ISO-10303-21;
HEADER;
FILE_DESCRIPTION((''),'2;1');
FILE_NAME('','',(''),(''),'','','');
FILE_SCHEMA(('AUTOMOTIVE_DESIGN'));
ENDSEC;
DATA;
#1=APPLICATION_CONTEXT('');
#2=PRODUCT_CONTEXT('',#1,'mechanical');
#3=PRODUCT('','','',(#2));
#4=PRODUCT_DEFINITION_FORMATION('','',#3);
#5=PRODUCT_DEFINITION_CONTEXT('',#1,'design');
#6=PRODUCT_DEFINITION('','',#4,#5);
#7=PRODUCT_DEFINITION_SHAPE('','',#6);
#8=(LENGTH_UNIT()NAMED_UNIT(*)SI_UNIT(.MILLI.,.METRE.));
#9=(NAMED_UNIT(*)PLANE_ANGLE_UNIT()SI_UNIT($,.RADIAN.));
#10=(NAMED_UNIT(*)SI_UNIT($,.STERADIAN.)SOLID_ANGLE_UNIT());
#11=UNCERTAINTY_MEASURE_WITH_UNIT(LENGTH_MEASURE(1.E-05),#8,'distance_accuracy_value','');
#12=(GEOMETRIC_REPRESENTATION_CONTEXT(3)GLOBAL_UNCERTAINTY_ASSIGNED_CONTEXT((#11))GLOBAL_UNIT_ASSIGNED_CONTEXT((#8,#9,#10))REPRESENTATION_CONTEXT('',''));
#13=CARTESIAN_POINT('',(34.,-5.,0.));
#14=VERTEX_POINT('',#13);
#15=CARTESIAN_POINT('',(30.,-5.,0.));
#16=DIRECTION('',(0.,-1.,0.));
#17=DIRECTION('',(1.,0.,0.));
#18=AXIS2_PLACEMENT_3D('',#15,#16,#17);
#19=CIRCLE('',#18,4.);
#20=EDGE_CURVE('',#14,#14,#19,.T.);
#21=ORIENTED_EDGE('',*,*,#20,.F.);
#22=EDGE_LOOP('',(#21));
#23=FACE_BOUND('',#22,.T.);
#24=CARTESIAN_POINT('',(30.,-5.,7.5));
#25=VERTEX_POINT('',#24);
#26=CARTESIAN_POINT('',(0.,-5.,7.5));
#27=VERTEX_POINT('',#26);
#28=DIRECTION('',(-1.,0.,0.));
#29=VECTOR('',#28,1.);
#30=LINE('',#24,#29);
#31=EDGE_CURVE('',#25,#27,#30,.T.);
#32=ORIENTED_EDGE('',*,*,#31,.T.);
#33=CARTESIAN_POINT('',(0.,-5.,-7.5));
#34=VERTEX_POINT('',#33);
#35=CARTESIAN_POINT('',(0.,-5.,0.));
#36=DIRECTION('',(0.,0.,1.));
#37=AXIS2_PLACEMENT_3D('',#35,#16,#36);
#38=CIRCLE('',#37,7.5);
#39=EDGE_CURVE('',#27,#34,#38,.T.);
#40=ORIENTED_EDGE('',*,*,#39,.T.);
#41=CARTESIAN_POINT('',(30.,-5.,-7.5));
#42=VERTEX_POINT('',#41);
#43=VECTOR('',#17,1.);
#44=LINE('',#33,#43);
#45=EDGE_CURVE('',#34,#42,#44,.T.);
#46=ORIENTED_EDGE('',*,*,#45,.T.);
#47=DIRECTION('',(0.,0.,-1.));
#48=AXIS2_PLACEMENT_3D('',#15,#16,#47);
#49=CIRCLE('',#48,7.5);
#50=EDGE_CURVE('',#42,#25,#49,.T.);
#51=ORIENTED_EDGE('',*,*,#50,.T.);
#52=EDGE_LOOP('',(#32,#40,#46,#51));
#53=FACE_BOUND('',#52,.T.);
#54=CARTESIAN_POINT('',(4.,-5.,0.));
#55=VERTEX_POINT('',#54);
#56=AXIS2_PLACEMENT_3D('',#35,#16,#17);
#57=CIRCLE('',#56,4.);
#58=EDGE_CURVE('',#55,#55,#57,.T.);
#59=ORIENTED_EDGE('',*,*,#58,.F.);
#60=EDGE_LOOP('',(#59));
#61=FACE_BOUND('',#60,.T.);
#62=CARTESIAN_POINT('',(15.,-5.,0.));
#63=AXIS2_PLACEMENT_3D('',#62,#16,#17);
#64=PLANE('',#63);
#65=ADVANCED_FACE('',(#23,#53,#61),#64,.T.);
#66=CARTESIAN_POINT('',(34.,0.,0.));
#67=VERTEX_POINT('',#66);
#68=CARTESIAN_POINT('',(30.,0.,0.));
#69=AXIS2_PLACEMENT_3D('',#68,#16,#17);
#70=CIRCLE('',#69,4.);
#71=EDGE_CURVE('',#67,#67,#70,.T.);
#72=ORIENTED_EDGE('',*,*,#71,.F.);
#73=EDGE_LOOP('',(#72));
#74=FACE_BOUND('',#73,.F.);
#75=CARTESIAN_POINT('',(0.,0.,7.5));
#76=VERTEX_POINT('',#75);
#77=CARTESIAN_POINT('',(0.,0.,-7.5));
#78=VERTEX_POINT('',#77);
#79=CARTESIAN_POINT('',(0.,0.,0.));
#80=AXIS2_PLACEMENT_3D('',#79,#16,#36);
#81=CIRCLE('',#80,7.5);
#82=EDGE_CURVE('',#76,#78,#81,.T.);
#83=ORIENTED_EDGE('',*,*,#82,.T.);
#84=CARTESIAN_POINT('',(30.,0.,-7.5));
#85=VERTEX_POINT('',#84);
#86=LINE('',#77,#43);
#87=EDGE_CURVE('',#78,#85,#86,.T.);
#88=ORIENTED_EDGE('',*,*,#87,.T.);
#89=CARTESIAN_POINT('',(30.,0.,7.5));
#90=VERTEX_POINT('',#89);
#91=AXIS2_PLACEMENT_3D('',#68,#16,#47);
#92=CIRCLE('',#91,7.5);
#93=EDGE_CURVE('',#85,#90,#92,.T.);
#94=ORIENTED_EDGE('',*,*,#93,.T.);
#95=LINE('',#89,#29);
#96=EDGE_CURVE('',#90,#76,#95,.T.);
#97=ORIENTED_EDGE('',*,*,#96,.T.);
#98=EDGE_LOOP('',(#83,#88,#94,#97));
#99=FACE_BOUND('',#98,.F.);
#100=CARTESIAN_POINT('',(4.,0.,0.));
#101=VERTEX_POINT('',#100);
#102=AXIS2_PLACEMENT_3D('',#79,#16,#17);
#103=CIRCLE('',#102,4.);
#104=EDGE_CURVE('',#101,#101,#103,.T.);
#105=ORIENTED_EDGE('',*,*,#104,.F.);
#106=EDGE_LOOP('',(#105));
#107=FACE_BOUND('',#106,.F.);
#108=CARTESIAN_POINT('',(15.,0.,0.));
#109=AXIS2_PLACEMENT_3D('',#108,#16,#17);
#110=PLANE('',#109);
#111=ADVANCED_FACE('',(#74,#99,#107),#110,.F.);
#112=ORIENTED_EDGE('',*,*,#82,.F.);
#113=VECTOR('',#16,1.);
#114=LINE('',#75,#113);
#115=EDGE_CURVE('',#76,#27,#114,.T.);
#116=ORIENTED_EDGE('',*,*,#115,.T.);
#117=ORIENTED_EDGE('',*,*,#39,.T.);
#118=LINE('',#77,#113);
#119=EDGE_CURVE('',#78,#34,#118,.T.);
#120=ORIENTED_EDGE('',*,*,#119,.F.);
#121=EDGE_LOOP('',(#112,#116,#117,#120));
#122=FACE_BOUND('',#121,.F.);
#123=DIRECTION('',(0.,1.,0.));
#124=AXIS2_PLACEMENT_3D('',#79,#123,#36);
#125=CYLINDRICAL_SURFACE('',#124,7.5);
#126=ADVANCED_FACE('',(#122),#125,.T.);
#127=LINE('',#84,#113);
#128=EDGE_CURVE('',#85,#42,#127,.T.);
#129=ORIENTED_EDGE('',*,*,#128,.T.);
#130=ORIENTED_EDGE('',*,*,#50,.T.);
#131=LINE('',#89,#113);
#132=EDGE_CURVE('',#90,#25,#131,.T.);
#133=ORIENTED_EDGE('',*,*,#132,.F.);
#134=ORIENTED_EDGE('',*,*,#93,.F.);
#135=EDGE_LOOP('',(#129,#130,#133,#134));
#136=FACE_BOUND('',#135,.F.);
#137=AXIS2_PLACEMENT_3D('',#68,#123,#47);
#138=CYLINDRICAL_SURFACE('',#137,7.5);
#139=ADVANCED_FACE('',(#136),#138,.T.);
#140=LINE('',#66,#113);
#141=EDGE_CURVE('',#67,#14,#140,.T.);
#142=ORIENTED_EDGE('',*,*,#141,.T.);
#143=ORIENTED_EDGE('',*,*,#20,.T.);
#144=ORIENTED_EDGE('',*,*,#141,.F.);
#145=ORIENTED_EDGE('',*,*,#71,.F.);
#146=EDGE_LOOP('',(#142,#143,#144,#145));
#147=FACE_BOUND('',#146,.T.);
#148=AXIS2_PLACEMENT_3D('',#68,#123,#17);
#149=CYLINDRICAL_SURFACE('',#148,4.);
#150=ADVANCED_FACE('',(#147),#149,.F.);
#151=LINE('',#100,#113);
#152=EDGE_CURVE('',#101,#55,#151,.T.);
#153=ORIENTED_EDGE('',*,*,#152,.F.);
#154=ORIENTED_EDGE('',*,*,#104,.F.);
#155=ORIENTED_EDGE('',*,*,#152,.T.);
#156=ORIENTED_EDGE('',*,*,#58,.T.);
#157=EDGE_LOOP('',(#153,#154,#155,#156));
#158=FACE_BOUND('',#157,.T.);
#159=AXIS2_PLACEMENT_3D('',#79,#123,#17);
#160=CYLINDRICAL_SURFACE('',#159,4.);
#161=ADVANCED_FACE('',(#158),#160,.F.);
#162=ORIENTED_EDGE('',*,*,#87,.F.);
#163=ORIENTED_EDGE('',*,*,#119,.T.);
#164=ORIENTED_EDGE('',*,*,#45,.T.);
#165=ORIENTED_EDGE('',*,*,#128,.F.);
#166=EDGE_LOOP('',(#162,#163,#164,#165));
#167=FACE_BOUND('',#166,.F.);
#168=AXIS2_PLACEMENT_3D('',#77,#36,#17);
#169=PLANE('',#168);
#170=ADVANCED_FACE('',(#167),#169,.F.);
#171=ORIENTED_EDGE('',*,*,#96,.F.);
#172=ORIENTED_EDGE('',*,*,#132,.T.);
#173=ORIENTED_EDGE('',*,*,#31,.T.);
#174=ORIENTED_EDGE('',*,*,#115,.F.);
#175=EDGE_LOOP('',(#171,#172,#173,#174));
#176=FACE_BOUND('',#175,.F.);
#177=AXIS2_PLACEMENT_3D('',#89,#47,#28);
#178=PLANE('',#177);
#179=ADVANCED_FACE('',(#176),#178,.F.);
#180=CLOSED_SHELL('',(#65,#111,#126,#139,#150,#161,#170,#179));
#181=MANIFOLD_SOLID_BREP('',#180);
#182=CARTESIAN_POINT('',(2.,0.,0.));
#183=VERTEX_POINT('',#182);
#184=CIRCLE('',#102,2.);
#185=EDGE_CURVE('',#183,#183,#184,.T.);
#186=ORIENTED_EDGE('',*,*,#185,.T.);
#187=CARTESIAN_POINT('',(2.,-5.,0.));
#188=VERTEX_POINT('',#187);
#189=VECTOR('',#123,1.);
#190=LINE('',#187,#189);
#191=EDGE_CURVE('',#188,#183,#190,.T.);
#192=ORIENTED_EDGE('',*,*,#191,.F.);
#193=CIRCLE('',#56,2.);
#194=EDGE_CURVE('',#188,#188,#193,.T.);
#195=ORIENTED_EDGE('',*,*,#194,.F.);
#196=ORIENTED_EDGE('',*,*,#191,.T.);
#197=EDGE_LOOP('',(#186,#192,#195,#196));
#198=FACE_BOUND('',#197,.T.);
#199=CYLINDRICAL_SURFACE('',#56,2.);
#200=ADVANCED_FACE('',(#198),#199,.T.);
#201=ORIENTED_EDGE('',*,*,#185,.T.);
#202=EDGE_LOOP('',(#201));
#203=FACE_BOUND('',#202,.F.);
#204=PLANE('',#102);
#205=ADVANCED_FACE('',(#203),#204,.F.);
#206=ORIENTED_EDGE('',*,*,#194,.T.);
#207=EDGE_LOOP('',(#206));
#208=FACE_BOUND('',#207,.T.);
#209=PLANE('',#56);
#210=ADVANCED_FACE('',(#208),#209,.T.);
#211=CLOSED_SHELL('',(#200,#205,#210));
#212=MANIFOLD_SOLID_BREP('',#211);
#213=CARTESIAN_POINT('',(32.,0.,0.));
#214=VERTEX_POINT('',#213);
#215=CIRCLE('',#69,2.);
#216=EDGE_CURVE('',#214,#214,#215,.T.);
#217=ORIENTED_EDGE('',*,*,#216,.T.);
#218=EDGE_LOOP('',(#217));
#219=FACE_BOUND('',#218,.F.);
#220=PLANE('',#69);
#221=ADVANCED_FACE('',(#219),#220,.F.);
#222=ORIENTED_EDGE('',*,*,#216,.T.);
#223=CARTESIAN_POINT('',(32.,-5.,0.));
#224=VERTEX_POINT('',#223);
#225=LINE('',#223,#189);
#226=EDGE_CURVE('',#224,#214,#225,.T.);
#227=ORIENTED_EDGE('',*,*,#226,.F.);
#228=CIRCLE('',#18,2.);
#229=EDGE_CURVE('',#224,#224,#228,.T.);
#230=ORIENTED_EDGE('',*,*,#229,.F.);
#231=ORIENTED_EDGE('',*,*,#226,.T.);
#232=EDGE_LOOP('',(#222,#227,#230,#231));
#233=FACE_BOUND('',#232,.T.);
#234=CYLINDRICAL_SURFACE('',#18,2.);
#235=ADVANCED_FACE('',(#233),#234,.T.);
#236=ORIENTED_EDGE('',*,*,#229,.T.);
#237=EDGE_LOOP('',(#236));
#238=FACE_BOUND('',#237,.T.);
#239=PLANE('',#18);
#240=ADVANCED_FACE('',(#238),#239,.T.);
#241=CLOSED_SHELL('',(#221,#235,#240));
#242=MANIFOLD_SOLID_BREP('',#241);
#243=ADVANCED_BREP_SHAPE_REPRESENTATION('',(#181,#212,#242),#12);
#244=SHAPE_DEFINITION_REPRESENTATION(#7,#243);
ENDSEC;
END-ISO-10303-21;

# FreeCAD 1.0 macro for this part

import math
import FreeCAD as App
import Part
import Sketcher
from FreeCAD import Vector
Q = App.Units.Quantity

doc = App.newDocument("Part")
body = doc.addObject("PartDesign::Body", "Body")

# Sketch on XZ plane
sketch1 = body.newObject("Sketcher::SketchObject", "Sketch")
sketch1.AttachmentSupport = (doc.getObject("XZ_Plane"), [""])
sketch1.MapMode = "FlatFace"
sketch1.addGeometry([
    Part.LineSegment(Vector(30, 7.5, 0), Vector(0, 7.5, 0)),  # 0
    Part.ArcOfCircle(Part.Circle(Vector(0, 0, 0), Vector(0, 0, 1), 7.5), math.radians(90), math.radians(270)),  # 1
    Part.LineSegment(Vector(0, -7.5, 0), Vector(30, -7.5, 0)),  # 2
    Part.ArcOfCircle(Part.Circle(Vector(30, 0, 0), Vector(0, 0, 1), 7.5), math.radians(-90), math.radians(90)),  # 3
    Part.Circle(Vector(0, 0, 0), Vector(0, 0, 1), 4),  # 4
    Part.Circle(Vector(30, 0, 0), Vector(0, 0, 1), 4),  # 5
], False)
sketch1.addConstraint([
    Sketcher.Constraint("Tangent", 0, 2, 1, 1),
    Sketcher.Constraint("Tangent", 1, 2, 2, 1),
    Sketcher.Constraint("Tangent", 2, 2, 3, 1),
    Sketcher.Constraint("Tangent", 3, 2, 0, 1),
    Sketcher.Constraint("Horizontal", 0),
    Sketcher.Constraint("Horizontal", 2),
    Sketcher.Constraint("Coincident", 1, 3, -1, 1),
    Sketcher.Constraint("Coincident", 4, 3, -1, 1),
    Sketcher.Constraint("Coincident", 5, 3, 3, 3),
    Sketcher.Constraint("Equal", 4, 5),
    Sketcher.Constraint("Diameter", 4, Q("8 mm")),
    Sketcher.Constraint("Radius", 1, Q("7.5 mm")),
    Sketcher.Constraint("DistanceX", 0, 2, 0, 1, Q("30 mm")),
])
pad1 = body.newObject("PartDesign::Pad", "Pad")
pad1.Profile = sketch1
pad1.Length = 5
body2 = doc.addObject("PartDesign::Body", "Body001")
body2.AllowCompound = True

# Sketch on XZ plane
sketch2 = body2.newObject("Sketcher::SketchObject", "Sketch001")
sketch2.AttachmentSupport = (doc.getObject("XZ_Plane001"), [""])
sketch2.MapMode = "FlatFace"
sketch2.AttachmentOffset = App.Placement(Vector(0, 0, 5), App.Rotation())
sketch2.addGeometry([
    Part.Circle(Vector(30, 0, 0), Vector(0, 0, 1), 2),
    Part.Circle(Vector(0, 0, 0), Vector(0, 0, 1), 2),
], False)
sketch2.addConstraint([
    Sketcher.Constraint("Coincident", 1, 3, -1, 1),
    Sketcher.Constraint("Equal", 0, 1),
    Sketcher.Constraint("PointOnObject", 0, 3, -1),
    Sketcher.Constraint("Diameter", 0, Q("4 mm")),
    Sketcher.Constraint("DistanceX", -1, 1, 0, 3, Q("30 mm")),
])
pad2 = body2.newObject("PartDesign::Pad", "Pad001")
pad2.Profile = sketch2
pad2.Length = 5
pad2.Reversed = True

doc.recompute()
